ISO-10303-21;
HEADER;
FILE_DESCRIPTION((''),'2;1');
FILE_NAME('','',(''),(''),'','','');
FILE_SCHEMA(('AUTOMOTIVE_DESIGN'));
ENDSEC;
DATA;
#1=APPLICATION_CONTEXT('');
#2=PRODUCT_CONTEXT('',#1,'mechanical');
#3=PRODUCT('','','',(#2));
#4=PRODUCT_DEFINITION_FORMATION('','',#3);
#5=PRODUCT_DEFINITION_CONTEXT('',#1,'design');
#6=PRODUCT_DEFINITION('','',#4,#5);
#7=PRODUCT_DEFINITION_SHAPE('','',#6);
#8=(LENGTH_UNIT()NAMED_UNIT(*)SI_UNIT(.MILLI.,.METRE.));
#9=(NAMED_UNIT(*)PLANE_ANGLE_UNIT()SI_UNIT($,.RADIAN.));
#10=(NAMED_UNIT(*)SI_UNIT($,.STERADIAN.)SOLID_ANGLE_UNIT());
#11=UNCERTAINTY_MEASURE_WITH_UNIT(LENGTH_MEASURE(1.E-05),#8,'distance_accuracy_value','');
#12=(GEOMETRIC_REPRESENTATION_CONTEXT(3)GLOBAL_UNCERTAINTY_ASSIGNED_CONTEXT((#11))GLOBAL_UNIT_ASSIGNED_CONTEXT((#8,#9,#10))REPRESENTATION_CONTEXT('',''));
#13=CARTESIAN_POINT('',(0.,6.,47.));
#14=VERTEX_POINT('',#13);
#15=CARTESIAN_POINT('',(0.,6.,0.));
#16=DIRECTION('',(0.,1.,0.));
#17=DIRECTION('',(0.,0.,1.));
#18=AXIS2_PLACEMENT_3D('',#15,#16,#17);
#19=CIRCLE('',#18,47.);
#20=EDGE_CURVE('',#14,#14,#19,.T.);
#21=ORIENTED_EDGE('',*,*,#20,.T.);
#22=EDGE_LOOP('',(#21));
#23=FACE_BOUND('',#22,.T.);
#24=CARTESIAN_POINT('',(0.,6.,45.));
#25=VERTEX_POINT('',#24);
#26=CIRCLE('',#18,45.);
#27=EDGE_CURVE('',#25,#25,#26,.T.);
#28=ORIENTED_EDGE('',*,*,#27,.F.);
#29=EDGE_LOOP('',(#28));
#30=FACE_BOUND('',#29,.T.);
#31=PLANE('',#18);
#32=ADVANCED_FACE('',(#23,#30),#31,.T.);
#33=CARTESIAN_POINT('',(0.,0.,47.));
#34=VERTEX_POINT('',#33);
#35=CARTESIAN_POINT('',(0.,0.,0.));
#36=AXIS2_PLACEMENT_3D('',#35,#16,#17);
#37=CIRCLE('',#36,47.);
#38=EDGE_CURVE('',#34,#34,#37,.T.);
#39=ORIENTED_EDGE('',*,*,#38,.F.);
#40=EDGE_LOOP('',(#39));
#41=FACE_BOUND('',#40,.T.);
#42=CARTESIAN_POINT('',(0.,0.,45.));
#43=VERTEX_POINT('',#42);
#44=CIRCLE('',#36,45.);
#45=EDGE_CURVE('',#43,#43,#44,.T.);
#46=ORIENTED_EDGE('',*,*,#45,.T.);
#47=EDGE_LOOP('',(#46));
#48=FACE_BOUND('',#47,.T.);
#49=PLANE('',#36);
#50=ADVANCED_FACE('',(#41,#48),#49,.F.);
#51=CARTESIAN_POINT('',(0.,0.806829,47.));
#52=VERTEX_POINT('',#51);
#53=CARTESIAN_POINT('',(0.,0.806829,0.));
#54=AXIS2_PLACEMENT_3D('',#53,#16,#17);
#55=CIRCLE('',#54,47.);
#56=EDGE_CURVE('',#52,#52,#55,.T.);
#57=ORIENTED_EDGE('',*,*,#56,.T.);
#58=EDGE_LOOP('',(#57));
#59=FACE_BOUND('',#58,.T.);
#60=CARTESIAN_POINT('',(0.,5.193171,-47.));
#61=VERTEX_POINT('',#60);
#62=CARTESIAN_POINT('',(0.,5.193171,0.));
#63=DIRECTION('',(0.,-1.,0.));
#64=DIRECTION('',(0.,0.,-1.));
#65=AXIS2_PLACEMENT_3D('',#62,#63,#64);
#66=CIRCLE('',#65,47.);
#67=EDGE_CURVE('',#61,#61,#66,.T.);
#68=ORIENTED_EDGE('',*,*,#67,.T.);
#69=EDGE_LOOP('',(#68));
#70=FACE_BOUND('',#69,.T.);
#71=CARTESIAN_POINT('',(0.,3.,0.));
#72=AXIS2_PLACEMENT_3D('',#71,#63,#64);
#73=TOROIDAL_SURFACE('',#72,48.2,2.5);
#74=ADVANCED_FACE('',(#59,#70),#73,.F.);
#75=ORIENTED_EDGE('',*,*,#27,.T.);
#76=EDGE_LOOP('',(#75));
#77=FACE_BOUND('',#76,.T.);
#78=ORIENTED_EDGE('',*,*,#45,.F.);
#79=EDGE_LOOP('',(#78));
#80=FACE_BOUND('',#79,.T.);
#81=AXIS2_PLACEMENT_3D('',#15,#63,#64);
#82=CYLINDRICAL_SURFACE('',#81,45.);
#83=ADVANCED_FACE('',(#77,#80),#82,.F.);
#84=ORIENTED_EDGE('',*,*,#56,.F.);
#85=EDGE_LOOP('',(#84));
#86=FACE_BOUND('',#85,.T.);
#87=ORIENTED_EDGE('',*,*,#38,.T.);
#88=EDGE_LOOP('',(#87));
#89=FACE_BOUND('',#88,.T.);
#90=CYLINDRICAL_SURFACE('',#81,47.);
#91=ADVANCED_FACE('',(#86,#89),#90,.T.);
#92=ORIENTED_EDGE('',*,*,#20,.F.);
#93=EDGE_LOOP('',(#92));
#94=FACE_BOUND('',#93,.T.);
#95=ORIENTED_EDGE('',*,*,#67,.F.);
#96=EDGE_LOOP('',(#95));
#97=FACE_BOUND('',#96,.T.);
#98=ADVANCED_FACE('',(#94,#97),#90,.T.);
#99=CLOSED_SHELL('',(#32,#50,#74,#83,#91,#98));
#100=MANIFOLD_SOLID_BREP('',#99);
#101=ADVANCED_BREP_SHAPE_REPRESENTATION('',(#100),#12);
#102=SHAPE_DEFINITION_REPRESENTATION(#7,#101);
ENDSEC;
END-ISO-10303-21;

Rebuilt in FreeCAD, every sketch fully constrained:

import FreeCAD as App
import Part
import Sketcher
from FreeCAD import Vector
Q = App.Units.Quantity

doc = App.newDocument("Part")
body = doc.addObject("PartDesign::Body", "Body")

# Sketch on XZ plane
sketch1 = body.newObject("Sketcher::SketchObject", "Sketch")
sketch1.AttachmentSupport = (doc.getObject("XZ_Plane"), [""])
sketch1.MapMode = "FlatFace"
sketch1.addGeometry(Part.Circle(Vector(0, 0, 0), Vector(0, 0, 1), 47), False)
sketch1.addGeometry(Part.Circle(Vector(0, 0, 0), Vector(0, 0, 1), 45), False)
sketch1.addConstraint(Sketcher.Constraint("Coincident", 0, 3, -1, 1))
sketch1.addConstraint(Sketcher.Constraint("Coincident", 1, 3, -1, 1))
sketch1.addConstraint(Sketcher.Constraint("Diameter", 0, Q("94 mm")))
sketch1.addConstraint(Sketcher.Constraint("Diameter", 1, Q("90 mm")))
pad1 = body.newObject("PartDesign::Pad", "Pad")
pad1.Profile = sketch1
pad1.Length = 6
pad1.Reversed = True

# Sketch on YZ plane
sketch2 = body.newObject("Sketcher::SketchObject", "Sketch001")
sketch2.AttachmentSupport = (doc.getObject("YZ_Plane"), [""])
sketch2.MapMode = "FlatFace"
sketch2.addGeometry(Part.Circle(Vector(3, 48.2, 0), Vector(0, 0, 1), 2.5), False)
sketch2.addConstraint(Sketcher.Constraint("Diameter", 0, Q("5 mm")))
sketch2.addConstraint(Sketcher.Constraint("DistanceX", -1, 1, 0, 3, Q("3 mm")))
sketch2.addConstraint(Sketcher.Constraint("DistanceY", -1, 1, 0, 3, Q("48.2 mm")))
groove = body.newObject("PartDesign::Groove", "Groove")
groove.Profile = sketch2
groove.ReferenceAxis = (sketch2, ["H_Axis"])
groove.Angle = 360

doc.recompute()
